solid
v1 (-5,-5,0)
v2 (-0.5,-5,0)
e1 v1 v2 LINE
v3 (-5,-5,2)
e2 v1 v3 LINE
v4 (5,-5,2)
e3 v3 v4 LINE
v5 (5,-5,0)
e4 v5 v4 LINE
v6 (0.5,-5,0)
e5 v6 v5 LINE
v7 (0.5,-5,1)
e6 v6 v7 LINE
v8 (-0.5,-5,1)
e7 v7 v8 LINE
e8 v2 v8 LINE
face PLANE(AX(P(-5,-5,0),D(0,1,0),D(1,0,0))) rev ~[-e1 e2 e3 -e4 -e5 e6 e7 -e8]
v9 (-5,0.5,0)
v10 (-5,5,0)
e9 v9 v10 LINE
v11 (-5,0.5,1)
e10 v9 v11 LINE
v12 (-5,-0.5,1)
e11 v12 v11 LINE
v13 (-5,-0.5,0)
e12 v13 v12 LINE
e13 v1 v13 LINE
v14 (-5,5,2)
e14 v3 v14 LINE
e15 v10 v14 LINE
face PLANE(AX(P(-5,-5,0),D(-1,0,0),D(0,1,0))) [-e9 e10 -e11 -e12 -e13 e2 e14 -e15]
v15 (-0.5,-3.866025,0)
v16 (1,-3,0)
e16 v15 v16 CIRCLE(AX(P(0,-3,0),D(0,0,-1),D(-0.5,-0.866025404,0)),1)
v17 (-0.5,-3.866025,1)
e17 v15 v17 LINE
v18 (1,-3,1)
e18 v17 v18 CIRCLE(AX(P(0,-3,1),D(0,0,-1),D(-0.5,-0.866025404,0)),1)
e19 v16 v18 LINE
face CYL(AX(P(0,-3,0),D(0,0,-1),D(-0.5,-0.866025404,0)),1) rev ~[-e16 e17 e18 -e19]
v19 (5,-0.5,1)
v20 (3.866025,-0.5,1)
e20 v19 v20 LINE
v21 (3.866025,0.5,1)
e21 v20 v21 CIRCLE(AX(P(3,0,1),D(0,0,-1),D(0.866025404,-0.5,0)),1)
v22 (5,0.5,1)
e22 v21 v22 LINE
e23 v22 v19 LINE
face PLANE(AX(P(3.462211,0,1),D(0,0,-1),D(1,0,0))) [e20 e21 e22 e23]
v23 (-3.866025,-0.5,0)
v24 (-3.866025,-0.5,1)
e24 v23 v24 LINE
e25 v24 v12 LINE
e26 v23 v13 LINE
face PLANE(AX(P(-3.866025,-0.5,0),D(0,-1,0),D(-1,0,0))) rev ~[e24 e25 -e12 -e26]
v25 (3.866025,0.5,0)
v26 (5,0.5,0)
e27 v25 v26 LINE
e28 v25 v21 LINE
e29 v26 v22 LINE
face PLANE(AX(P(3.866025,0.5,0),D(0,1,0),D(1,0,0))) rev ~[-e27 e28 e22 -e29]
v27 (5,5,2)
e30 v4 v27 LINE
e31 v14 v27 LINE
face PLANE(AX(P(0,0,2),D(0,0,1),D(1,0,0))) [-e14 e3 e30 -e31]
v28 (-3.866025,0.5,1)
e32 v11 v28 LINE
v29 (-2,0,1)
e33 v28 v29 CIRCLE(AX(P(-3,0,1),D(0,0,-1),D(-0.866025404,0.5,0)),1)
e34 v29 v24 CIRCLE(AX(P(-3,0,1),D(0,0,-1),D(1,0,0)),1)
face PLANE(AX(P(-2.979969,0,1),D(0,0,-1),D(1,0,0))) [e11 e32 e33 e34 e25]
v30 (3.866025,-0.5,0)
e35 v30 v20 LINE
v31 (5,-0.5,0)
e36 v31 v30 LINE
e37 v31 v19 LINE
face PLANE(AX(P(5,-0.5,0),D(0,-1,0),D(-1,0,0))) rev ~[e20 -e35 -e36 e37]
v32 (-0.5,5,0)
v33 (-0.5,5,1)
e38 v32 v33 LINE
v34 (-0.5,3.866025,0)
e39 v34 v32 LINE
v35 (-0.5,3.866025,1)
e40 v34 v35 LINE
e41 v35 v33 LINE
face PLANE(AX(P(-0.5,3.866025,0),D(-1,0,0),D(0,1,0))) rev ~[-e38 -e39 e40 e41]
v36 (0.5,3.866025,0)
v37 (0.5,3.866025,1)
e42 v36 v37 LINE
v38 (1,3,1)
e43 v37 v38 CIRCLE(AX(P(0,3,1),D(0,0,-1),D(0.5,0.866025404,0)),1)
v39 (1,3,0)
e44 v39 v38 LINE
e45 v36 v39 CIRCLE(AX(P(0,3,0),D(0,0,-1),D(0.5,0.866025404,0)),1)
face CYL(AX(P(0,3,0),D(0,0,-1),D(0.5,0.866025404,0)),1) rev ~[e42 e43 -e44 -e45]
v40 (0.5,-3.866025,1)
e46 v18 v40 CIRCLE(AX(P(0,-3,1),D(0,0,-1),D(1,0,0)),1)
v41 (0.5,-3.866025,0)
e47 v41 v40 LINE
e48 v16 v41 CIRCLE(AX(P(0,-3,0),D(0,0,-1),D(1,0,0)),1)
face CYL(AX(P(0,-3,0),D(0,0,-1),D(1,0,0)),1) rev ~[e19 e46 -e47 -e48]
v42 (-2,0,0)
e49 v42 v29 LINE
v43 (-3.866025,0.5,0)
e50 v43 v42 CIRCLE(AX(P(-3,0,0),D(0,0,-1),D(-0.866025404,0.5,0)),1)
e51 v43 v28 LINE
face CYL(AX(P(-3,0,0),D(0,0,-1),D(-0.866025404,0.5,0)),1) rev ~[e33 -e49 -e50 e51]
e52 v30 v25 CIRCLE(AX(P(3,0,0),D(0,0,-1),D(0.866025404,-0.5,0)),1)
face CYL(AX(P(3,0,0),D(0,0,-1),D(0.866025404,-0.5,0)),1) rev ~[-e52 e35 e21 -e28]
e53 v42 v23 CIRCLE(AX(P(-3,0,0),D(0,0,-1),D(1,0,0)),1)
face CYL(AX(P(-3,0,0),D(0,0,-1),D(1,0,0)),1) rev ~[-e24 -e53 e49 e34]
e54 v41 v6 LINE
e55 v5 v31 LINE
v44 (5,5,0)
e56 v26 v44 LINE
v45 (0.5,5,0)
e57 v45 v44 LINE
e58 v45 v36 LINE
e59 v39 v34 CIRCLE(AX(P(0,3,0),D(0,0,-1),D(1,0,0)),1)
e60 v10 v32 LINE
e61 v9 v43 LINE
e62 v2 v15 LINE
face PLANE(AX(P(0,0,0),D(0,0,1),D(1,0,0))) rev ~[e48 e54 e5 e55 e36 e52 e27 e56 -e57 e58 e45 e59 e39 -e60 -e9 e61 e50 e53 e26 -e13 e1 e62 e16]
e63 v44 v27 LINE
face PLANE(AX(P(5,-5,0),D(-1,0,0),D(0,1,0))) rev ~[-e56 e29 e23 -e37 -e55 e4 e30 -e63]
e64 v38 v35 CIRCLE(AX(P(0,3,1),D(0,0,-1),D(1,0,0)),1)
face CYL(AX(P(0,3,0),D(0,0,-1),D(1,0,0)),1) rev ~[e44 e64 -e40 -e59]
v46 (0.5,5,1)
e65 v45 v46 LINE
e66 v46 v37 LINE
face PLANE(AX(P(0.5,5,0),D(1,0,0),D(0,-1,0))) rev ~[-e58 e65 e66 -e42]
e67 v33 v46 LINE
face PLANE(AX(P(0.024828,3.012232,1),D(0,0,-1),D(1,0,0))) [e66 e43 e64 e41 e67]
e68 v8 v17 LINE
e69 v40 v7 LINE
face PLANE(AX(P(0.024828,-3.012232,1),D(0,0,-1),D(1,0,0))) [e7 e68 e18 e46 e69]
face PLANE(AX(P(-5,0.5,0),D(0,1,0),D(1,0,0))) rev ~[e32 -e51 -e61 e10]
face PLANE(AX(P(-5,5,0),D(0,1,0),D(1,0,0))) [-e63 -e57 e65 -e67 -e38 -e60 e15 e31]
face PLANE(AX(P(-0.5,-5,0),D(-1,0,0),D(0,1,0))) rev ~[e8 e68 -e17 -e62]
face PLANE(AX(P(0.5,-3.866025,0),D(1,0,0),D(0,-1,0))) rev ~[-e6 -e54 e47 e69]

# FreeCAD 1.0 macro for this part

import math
import FreeCAD as App
import Part
import Sketcher


def add_polygon(sketch, points):
    """Adds a closed chain of lines whose ends are joined by coincident constraints."""
    first, n = sketch.GeometryCount, len(points)
    for a, b in zip(points, points[1:] + points[:1]):
        sketch.addGeometry(Part.LineSegment(App.Vector(*a, 0), App.Vector(*b, 0)), False)
    for i in range(n):
        sketch.addConstraint(Sketcher.Constraint("Coincident", first + i, 2, first + (i + 1) % n, 1))

doc = App.newDocument("Part")
body = doc.addObject("PartDesign::Body", "Body")

# Sketch on XY plane
sketch1 = body.newObject("Sketcher::SketchObject", "Sketch")
sketch1.AttachmentSupport = (doc.getObject("XY_Plane"), [""])
sketch1.MapMode = "FlatFace"
add_polygon(sketch1, [(-5, 5), (-5, -5), (5, -5), (5, 5)])  # lines 0-3
sketch1.addConstraint([
    Sketcher.Constraint("Vertical", 0),
    Sketcher.Constraint("Horizontal", 1),
    Sketcher.Constraint("Vertical", 2),
    Sketcher.Constraint("Horizontal", 3),
    Sketcher.Constraint("Symmetric", 0, 2, 2, 2, -1, 1),
    Sketcher.Constraint("Equal", 3, 0),
    Sketcher.Constraint("DistanceX", 1, 1, 1, 2, 10.0),
])
pad1 = body.newObject("PartDesign::Pad", "Pad")
pad1.Profile = sketch1
pad1.Length = 2

# Sketch on XY plane
sketch2 = body.newObject("Sketcher::SketchObject", "Sketch001")
sketch2.AttachmentSupport = (doc.getObject("XY_Plane"), [""])
sketch2.MapMode = "FlatFace"
sketch2.addGeometry([
    Part.ArcOfCircle(Part.Circle(App.Vector(0, -3, 0), App.Vector(0, 0, 1), 1), math.radians(0), math.radians(240)),  # 0
    Part.ArcOfCircle(Part.Circle(App.Vector(0, -3, 0), App.Vector(0, 0, 1), 1), math.radians(-60), math.radians(0)),  # 1
    Part.LineSegment(App.Vector(0.5, -3.9, 0), App.Vector(0.5, -5, 0)),  # 2
    Part.LineSegment(App.Vector(0.5, -5, 0), App.Vector(-0.5, -5, 0)),  # 3
    Part.LineSegment(App.Vector(-0.5, -5, 0), App.Vector(-0.5, -3.9, 0)),  # 4
    Part.LineSegment(App.Vector(3.9, 0.5, 0), App.Vector(5, 0.5, 0)),  # 5
    Part.LineSegment(App.Vector(5, 0.5, 0), App.Vector(5, -0.5, 0)),  # 6
    Part.LineSegment(App.Vector(5, -0.5, 0), App.Vector(3.9, -0.5, 0)),  # 7
    Part.ArcOfCircle(Part.Circle(App.Vector(3, 0, 0), App.Vector(0, 0, 1), 1), math.radians(30), math.radians(330)),  # 8
    Part.ArcOfCircle(Part.Circle(App.Vector(0, 3, 0), App.Vector(0, 0, 1), 1), math.radians(0), math.radians(60)),  # 9
    Part.ArcOfCircle(Part.Circle(App.Vector(0, 3, 0), App.Vector(0, 0, 1), 1), math.radians(120), math.radians(360)),  # 10
    Part.LineSegment(App.Vector(-0.5, 3.9, 0), App.Vector(-0.5, 5, 0)),  # 11
    Part.LineSegment(App.Vector(-0.5, 5, 0), App.Vector(0.5, 5, 0)),  # 12
    Part.LineSegment(App.Vector(0.5, 5, 0), App.Vector(0.5, 3.9, 0)),  # 13
    Part.ArcOfCircle(Part.Circle(App.Vector(-3, 0, 0), App.Vector(0, 0, 1), 1), math.radians(0), math.radians(150)),  # 14
    Part.ArcOfCircle(Part.Circle(App.Vector(-3, 0, 0), App.Vector(0, 0, 1), 1), math.radians(-150), math.radians(0)),  # 15
    Part.LineSegment(App.Vector(-3.9, -0.5, 0), App.Vector(-5, -0.5, 0)),  # 16
    Part.LineSegment(App.Vector(-5, -0.5, 0), App.Vector(-5, 0.5, 0)),  # 17
    Part.LineSegment(App.Vector(-5, 0.5, 0), App.Vector(-3.9, 0.5, 0)),  # 18
], False)
sketch2.addConstraint([
    Sketcher.Constraint("Tangent", 0, 1, 1, 2),
    Sketcher.Constraint("Coincident", 1, 1, 2, 1),
    Sketcher.Constraint("Coincident", 2, 2, 3, 1),
    Sketcher.Constraint("Coincident", 3, 2, 4, 1),
    Sketcher.Constraint("Coincident", 4, 2, 0, 2),
    Sketcher.Constraint("Coincident", 5, 2, 6, 1),
    Sketcher.Constraint("Coincident", 6, 2, 7, 1),
    Sketcher.Constraint("Coincident", 7, 2, 8, 2),
    Sketcher.Constraint("Coincident", 8, 1, 5, 1),
    Sketcher.Constraint("Tangent", 9, 1, 10, 2),
    Sketcher.Constraint("Coincident", 10, 1, 11, 1),
    Sketcher.Constraint("Coincident", 11, 2, 12, 1),
    Sketcher.Constraint("Coincident", 12, 2, 13, 1),
    Sketcher.Constraint("Coincident", 13, 2, 9, 2),
    Sketcher.Constraint("Tangent", 14, 1, 15, 2),
    Sketcher.Constraint("Coincident", 15, 1, 16, 1),
    Sketcher.Constraint("Coincident", 16, 2, 17, 1),
    Sketcher.Constraint("Coincident", 17, 2, 18, 1),
    Sketcher.Constraint("Coincident", 18, 2, 14, 2),
    Sketcher.Constraint("Vertical", 2),
    Sketcher.Constraint("Horizontal", 3),
    Sketcher.Constraint("Vertical", 4),
    Sketcher.Constraint("Horizontal", 5),
    Sketcher.Constraint("Vertical", 6),
    Sketcher.Constraint("Horizontal", 7),
    Sketcher.Constraint("Vertical", 11),
    Sketcher.Constraint("Horizontal", 12),
    Sketcher.Constraint("Vertical", 13),
    Sketcher.Constraint("Horizontal", 16),
    Sketcher.Constraint("Vertical", 17),
    Sketcher.Constraint("Horizontal", 18),
    Sketcher.Constraint("Equal", 0, 1),
    Sketcher.Constraint("Equal", 1, 8),
    Sketcher.Constraint("Equal", 8, 9),
    Sketcher.Constraint("Equal", 9, 10),
    Sketcher.Constraint("Equal", 10, 14),
    Sketcher.Constraint("Equal", 14, 15),
    Sketcher.Constraint("Symmetric", 0, 3, 9, 3, -1, 1),
    Sketcher.Constraint("Symmetric", 8, 3, 14, 3, -1, 1),
    Sketcher.Constraint("Symmetric", 2, 2, 11, 2, -1, 1),
    Sketcher.Constraint("Symmetric", 5, 2, 16, 2, -1, 1),
    Sketcher.Constraint("Symmetric", 1, 1, 4, 2, -2),
    Sketcher.Constraint("Symmetric", 7, 2, 15, 1, -2),
    Sketcher.Constraint("PointOnObject", 14, 1, -1),
    Sketcher.Constraint("Horizontal", 1, 3, 0, 1),
    Sketcher.Constraint("Horizontal", 10, 3, 9, 1),
    Sketcher.Constraint("Horizontal", 10, 1, 13, 2),
    Sketcher.Constraint("Horizontal", 8, 1, 17, 2),
    Sketcher.Constraint("Equal", 18, 2),
    Sketcher.Constraint("Equal", 12, 6),
    Sketcher.Constraint("Radius", 0, 1.0),
    Sketcher.Constraint("DistanceX", 3, 2, 3, 1, 1.0),
    Sketcher.Constraint("DistanceY", 0, 3, -1, 1, 3.0),
    Sketcher.Constraint("DistanceX", -1, 1, 8, 3, 3.0),
    Sketcher.Constraint("DistanceY", 2, 2, -1, 1, 5.0),
])
pocket1 = body.newObject("PartDesign::Pocket", "Pocket")
pocket1.Profile = sketch2
pocket1.Length = 1
pocket1.Reversed = True

doc.recompute()
